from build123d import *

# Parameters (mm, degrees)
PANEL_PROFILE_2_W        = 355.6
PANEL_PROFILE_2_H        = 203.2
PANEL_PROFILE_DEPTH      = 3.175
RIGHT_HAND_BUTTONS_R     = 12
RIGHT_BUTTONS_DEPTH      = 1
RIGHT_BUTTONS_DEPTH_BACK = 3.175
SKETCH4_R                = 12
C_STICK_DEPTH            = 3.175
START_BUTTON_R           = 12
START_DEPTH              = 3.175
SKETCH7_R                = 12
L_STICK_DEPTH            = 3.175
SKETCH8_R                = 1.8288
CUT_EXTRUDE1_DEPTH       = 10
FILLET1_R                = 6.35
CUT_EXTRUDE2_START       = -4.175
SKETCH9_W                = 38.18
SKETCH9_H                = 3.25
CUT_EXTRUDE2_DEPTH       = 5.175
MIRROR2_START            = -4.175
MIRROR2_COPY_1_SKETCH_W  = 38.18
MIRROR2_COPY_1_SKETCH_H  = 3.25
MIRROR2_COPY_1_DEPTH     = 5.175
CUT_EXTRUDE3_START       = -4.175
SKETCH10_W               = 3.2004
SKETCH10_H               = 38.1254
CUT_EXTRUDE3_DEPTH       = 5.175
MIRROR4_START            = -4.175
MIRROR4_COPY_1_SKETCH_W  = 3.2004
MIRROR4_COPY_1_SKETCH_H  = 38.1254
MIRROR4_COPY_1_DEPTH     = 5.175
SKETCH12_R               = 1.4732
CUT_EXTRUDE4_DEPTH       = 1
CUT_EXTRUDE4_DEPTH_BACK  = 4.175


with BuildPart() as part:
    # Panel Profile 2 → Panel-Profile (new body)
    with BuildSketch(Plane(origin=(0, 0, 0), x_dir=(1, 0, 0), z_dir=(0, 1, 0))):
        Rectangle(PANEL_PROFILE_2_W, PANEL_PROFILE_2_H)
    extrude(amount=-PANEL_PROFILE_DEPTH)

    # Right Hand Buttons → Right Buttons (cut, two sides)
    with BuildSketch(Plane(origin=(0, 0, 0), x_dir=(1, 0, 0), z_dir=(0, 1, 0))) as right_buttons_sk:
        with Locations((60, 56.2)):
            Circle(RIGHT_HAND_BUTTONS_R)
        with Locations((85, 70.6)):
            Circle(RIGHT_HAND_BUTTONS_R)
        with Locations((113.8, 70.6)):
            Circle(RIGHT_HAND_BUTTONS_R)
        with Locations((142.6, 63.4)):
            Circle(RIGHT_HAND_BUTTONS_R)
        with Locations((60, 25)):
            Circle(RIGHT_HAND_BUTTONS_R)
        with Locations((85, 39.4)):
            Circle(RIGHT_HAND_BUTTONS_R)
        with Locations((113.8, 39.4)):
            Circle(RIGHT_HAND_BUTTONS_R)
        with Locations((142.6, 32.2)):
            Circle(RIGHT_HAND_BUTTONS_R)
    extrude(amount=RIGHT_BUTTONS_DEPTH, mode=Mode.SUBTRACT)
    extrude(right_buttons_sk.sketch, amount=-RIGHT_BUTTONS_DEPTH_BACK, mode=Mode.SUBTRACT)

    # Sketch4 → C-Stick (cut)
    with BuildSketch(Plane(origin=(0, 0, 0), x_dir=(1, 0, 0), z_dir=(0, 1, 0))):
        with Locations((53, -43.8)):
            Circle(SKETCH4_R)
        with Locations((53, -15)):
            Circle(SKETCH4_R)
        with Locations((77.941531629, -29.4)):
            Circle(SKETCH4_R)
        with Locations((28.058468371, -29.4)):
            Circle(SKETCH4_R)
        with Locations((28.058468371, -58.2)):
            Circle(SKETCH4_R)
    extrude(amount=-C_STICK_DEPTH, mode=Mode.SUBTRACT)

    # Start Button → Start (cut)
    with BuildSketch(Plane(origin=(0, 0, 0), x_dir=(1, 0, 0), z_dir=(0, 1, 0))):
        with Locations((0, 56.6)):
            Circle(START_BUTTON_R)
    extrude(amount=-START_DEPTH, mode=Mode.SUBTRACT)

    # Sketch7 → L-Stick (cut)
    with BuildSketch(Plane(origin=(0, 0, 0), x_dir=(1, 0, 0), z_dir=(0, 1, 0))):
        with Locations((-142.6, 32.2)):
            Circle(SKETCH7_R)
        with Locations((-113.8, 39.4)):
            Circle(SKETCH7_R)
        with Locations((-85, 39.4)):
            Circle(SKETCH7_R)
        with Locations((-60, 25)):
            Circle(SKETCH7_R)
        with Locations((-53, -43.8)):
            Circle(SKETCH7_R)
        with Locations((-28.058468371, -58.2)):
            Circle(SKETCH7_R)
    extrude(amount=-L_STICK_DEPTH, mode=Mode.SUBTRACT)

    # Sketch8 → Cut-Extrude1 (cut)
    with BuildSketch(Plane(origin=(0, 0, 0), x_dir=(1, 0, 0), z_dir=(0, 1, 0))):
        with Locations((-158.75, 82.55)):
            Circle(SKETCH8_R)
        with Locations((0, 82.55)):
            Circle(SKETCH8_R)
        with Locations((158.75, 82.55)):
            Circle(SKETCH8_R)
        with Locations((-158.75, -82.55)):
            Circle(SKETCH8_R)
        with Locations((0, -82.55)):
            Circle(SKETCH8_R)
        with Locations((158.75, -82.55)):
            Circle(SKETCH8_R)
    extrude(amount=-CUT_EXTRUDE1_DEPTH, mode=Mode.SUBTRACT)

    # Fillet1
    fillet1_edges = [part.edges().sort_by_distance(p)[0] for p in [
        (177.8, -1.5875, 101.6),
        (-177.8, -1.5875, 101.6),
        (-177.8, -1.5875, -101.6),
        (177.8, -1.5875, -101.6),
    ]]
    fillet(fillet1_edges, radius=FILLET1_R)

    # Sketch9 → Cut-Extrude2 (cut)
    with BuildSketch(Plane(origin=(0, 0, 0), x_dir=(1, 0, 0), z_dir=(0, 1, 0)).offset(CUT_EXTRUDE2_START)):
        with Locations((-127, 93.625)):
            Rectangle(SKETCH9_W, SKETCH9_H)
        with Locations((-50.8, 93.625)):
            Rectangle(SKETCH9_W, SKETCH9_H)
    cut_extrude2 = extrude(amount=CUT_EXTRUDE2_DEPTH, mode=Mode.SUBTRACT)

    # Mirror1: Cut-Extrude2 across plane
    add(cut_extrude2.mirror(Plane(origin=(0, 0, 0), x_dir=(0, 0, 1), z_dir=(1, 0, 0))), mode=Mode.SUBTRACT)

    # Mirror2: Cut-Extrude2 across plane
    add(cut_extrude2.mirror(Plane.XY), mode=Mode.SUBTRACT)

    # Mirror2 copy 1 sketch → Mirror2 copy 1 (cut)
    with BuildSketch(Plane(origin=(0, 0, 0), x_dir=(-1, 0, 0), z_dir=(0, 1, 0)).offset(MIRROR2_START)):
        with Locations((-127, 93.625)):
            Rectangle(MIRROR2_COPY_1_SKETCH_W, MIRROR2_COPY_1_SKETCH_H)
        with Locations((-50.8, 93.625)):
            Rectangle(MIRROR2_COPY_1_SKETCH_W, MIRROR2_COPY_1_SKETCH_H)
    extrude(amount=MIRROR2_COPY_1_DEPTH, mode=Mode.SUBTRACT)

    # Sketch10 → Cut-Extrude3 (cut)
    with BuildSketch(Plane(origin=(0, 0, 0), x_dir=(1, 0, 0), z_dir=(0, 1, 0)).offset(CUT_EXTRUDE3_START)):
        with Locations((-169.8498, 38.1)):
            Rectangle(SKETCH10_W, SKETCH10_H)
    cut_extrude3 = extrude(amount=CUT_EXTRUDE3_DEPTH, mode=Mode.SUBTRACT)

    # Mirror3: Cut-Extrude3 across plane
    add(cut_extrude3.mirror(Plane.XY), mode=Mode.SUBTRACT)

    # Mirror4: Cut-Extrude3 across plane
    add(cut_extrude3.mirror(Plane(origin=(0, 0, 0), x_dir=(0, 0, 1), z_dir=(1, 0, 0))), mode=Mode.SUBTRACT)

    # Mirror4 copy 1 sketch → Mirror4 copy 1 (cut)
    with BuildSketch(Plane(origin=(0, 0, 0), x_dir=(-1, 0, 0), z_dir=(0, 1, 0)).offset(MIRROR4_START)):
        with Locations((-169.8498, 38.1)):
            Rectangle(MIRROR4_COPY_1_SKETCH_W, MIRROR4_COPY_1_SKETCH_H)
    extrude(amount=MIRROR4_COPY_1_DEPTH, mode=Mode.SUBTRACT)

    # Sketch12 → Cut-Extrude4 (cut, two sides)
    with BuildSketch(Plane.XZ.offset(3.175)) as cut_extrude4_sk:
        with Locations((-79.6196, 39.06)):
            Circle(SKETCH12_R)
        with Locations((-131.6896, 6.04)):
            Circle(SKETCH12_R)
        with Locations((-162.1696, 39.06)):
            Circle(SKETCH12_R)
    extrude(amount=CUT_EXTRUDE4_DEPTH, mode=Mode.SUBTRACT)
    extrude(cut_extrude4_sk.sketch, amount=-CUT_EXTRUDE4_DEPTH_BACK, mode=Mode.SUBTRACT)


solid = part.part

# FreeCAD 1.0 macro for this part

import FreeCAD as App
import Part
import Sketcher

V = App.Vector
Q = App.Units.Quantity


def edges_at(feature, points):
    """Names of the edges that pass closest to the given points."""
    edges = feature.Shape.Edges
    near = lambda p: min(range(len(edges)), key=lambda i: edges[i].distToShape(Part.Vertex(*p))[0])
    return sorted({f"Edge{near(p) + 1}" for p in points})


def add_polygon(sketch, points):
    """Adds a closed chain of lines whose ends are joined by coincident constraints."""
    first, n = sketch.GeometryCount, len(points)
    for a, b in zip(points, points[1:] + points[:1]):
        sketch.addGeometry(Part.LineSegment(App.Vector(*a, 0), App.Vector(*b, 0)), False)
    for i in range(n):
        sketch.addConstraint(Sketcher.Constraint("Coincident", first + i, 2, first + (i + 1) % n, 1))

doc = App.newDocument("Part")
body = doc.addObject("PartDesign::Body", "Body")

sketch1 = body.newObject("Sketcher::SketchObject", "Sketch")
sketch1.AttachmentSupport = (doc.getObject("XZ_Plane"), [""])
sketch1.MapMode = "FlatFace"
add_polygon(sketch1, [(-178, -102), (-178, 102), (178, 102), (178, -102)])
sketch1.addConstraint(Sketcher.Constraint("Vertical", 0))
sketch1.addConstraint(Sketcher.Constraint("Horizontal", 1))
sketch1.addConstraint(Sketcher.Constraint("Vertical", 2))
sketch1.addConstraint(Sketcher.Constraint("Horizontal", 3))
sketch1.addConstraint(Sketcher.Constraint("Symmetric", 0, 2, 2, 2, -1, 1))
sketch1.addConstraint(Sketcher.Constraint("DistanceX", 1, 1, 1, 2, Q("14 in")))
sketch1.addConstraint(Sketcher.Constraint("DistanceY", 0, 1, 0, 2, Q("8 in")))
pad1 = body.newObject("PartDesign::Pad", "Pad")
pad1.Profile = sketch1
pad1.Length = Q("0.125 in")

sketch2 = body.newObject("Sketcher::SketchObject", "Sketch001")
sketch2.AttachmentSupport = (doc.getObject("XZ_Plane"), [""])
sketch2.MapMode = "FlatFace"
sketch2.addGeometry(Part.Circle(V(60, -56, 0), V(0, 0, 1), 12), False)
sketch2.addGeometry(Part.Circle(V(85, -71, 0), V(0, 0, 1), 12), False)
sketch2.addGeometry(Part.Circle(V(114, -71, 0), V(0, 0, 1), 12), False)
sketch2.addGeometry(Part.Circle(V(143, -63, 0), V(0, 0, 1), 12), False)
sketch2.addGeometry(Part.Circle(V(60, -25, 0), V(0, 0, 1), 12), False)
sketch2.addGeometry(Part.Circle(V(85, -39, 0), V(0, 0, 1), 12), False)
sketch2.addGeometry(Part.Circle(V(114, -39, 0), V(0, 0, 1), 12), False)
sketch2.addGeometry(Part.Circle(V(143, -32, 0), V(0, 0, 1), 12), False)
sketch2.addConstraint(Sketcher.Constraint("Equal", 0, 1))
sketch2.addConstraint(Sketcher.Constraint("Equal", 1, 2))
sketch2.addConstraint(Sketcher.Constraint("Equal", 2, 3))
sketch2.addConstraint(Sketcher.Constraint("Equal", 3, 4))
sketch2.addConstraint(Sketcher.Constraint("Equal", 4, 5))
sketch2.addConstraint(Sketcher.Constraint("Equal", 5, 6))
sketch2.addConstraint(Sketcher.Constraint("Equal", 6, 7))
sketch2.addConstraint(Sketcher.Constraint("Horizontal", 1, 3, 2, 3))
sketch2.addConstraint(Sketcher.Constraint("Horizontal", 5, 3, 6, 3))
sketch2.addConstraint(Sketcher.Constraint("Vertical", 0, 3, 4, 3))
sketch2.addConstraint(Sketcher.Constraint("Vertical", 1, 3, 5, 3))
sketch2.addConstraint(Sketcher.Constraint("Vertical", 2, 3, 6, 3))
sketch2.addConstraint(Sketcher.Constraint("Vertical", 3, 3, 7, 3))
sketch2.addConstraint(Sketcher.Constraint("Diameter", 0, Q("24 mm")))
sketch2.addConstraint(Sketcher.Constraint("DistanceX", -1, 1, 0, 3, Q("60 mm")))
sketch2.addConstraint(Sketcher.Constraint("DistanceY", 0, 3, -1, 1, Q("56.2 mm")))
sketch2.addConstraint(Sketcher.Constraint("DistanceX", -1, 1, 1, 3, Q("85 mm")))
sketch2.addConstraint(Sketcher.Constraint("DistanceY", 1, 3, -1, 1, Q("70.6 mm")))
sketch2.addConstraint(Sketcher.Constraint("DistanceX", -1, 1, 2, 3, Q("113.8 mm")))
sketch2.addConstraint(Sketcher.Constraint("DistanceX", -1, 1, 3, 3, Q("142.6 mm")))
sketch2.addConstraint(Sketcher.Constraint("DistanceY", 3, 3, -1, 1, Q("63.4 mm")))
sketch2.addConstraint(Sketcher.Constraint("DistanceY", 4, 3, -1, 1, Q("25 mm")))
sketch2.addConstraint(Sketcher.Constraint("DistanceY", 5, 3, -1, 1, Q("39.4 mm")))
sketch2.addConstraint(Sketcher.Constraint("DistanceY", 7, 3, -1, 1, Q("32.2 mm")))
pocket1 = body.newObject("PartDesign::Pocket", "Pocket")
pocket1.Profile = sketch2
pocket1.Type = "ThroughAll"
pocket1.Midplane = True

sketch3 = body.newObject("Sketcher::SketchObject", "Sketch002")
sketch3.AttachmentSupport = (doc.getObject("XZ_Plane"), [""])
sketch3.MapMode = "FlatFace"
sketch3.addGeometry(Part.Circle(V(53, 44, 0), V(0, 0, 1), 12), False)
sketch3.addGeometry(Part.Circle(V(53, 15, 0), V(0, 0, 1), 12), False)
sketch3.addGeometry(Part.Circle(V(78, 29, 0), V(0, 0, 1), 12), False)
sketch3.addGeometry(Part.Circle(V(28, 29, 0), V(0, 0, 1), 12), False)
sketch3.addGeometry(Part.Circle(V(28, 58, 0), V(0, 0, 1), 12), False)
sketch3.addConstraint(Sketcher.Constraint("Equal", 0, 1))
sketch3.addConstraint(Sketcher.Constraint("Equal", 1, 2))
sketch3.addConstraint(Sketcher.Constraint("Equal", 2, 3))
sketch3.addConstraint(Sketcher.Constraint("Equal", 3, 4))
sketch3.addConstraint(Sketcher.Constraint("Horizontal", 2, 3, 3, 3))
sketch3.addConstraint(Sketcher.Constraint("Vertical", 0, 3, 1, 3))
sketch3.addConstraint(Sketcher.Constraint("Vertical", 3, 3, 4, 3))
sketch3.addConstraint(Sketcher.Constraint("Diameter", 0, Q("24 mm")))
sketch3.addConstraint(Sketcher.Constraint("DistanceX", 3, 3, 2, 3, Q("1.9639001 in")))
sketch3.addConstraint(Sketcher.Constraint("DistanceX", -1, 1, 0, 3, Q("53 mm")))
sketch3.addConstraint(Sketcher.Constraint("DistanceY", -1, 1, 0, 3, Q("43.8 mm")))
sketch3.addConstraint(Sketcher.Constraint("DistanceY", -1, 1, 1, 3, Q("15 mm")))
sketch3.addConstraint(Sketcher.Constraint("DistanceY", -1, 1, 2, 3, Q("29.4 mm")))
sketch3.addConstraint(Sketcher.Constraint("DistanceY", -1, 1, 4, 3, Q("58.2 mm")))
sketch3.addConstraint(Sketcher.Constraint("DistanceX", -1, 1, 2, 3, Q("77.941532 mm")))
pocket2 = body.newObject("PartDesign::Pocket", "Pocket001")
pocket2.Profile = sketch3
pocket2.Length = Q("0.125 in")
pocket2.Reversed = True

sketch4 = body.newObject("Sketcher::SketchObject", "Sketch003")
sketch4.AttachmentSupport = (doc.getObject("XZ_Plane"), [""])
sketch4.MapMode = "FlatFace"
sketch4.addGeometry(Part.Circle(V(0, -57, 0), V(0, 0, 1), 12), False)
sketch4.addConstraint(Sketcher.Constraint("PointOnObject", 0, 3, -2))
sketch4.addConstraint(Sketcher.Constraint("Diameter", 0, Q("24 mm")))
sketch4.addConstraint(Sketcher.Constraint("DistanceY", 0, 3, -1, 1, Q("56.6 mm")))
pocket3 = body.newObject("PartDesign::Pocket", "Pocket002")
pocket3.Profile = sketch4
pocket3.Length = Q("0.125 in")
pocket3.Reversed = True

sketch5 = body.newObject("Sketcher::SketchObject", "Sketch004")
sketch5.AttachmentSupport = (doc.getObject("XZ_Plane"), [""])
sketch5.MapMode = "FlatFace"
sketch5.addGeometry(Part.Circle(V(-143, -32, 0), V(0, 0, 1), 12), False)
sketch5.addGeometry(Part.Circle(V(-114, -39, 0), V(0, 0, 1), 12), False)
sketch5.addGeometry(Part.Circle(V(-85, -39, 0), V(0, 0, 1), 12), False)
sketch5.addGeometry(Part.Circle(V(-60, -25, 0), V(0, 0, 1), 12), False)
sketch5.addGeometry(Part.Circle(V(-53, 44, 0), V(0, 0, 1), 12), False)
sketch5.addGeometry(Part.Circle(V(-28, 58, 0), V(0, 0, 1), 12), False)
sketch5.addConstraint(Sketcher.Constraint("Equal", 0, 1))
sketch5.addConstraint(Sketcher.Constraint("Equal", 1, 2))
sketch5.addConstraint(Sketcher.Constraint("Equal", 2, 3))
sketch5.addConstraint(Sketcher.Constraint("Equal", 3, 4))
sketch5.addConstraint(Sketcher.Constraint("Equal", 4, 5))
sketch5.addConstraint(Sketcher.Constraint("Horizontal", 1, 3, 2, 3))
sketch5.addConstraint(Sketcher.Constraint("Diameter", 0, Q("24 mm")))
sketch5.addConstraint(Sketcher.Constraint("DistanceX", 0, 3, -1, 1, Q("142.6 mm")))
sketch5.addConstraint(Sketcher.Constraint("DistanceY", 0, 3, -1, 1, Q("32.2 mm")))
sketch5.addConstraint(Sketcher.Constraint("DistanceX", 1, 3, -1, 1, Q("113.8 mm")))
sketch5.addConstraint(Sketcher.Constraint("DistanceY", 1, 3, -1, 1, Q("39.4 mm")))
sketch5.addConstraint(Sketcher.Constraint("DistanceX", 2, 3, -1, 1, Q("85 mm")))
sketch5.addConstraint(Sketcher.Constraint("DistanceX", 3, 3, -1, 1, Q("60 mm")))
sketch5.addConstraint(Sketcher.Constraint("DistanceY", 3, 3, -1, 1, Q("25 mm")))
sketch5.addConstraint(Sketcher.Constraint("DistanceX", 4, 3, -1, 1, Q("53 mm")))
sketch5.addConstraint(Sketcher.Constraint("DistanceY", -1, 1, 4, 3, Q("43.8 mm")))
sketch5.addConstraint(Sketcher.Constraint("DistanceY", -1, 1, 5, 3, Q("58.2 mm")))
sketch5.addConstraint(Sketcher.Constraint("DistanceX", 5, 3, -1, 1, Q("28.058468 mm")))
pocket4 = body.newObject("PartDesign::Pocket", "Pocket003")
pocket4.Profile = sketch5
pocket4.Length = Q("0.125 in")
pocket4.Reversed = True

sketch6 = body.newObject("Sketcher::SketchObject", "Sketch005")
sketch6.AttachmentSupport = (doc.getObject("XZ_Plane"), [""])
sketch6.MapMode = "FlatFace"
sketch6.addGeometry(Part.Circle(V(-158.8, -82.5, 0), V(0, 0, 1), 1.8), False)
sketch6.addGeometry(Part.Circle(V(0, -82.5, 0), V(0, 0, 1), 1.8), False)
sketch6.addGeometry(Part.Circle(V(158.8, -82.5, 0), V(0, 0, 1), 1.8), False)
sketch6.addGeometry(Part.Circle(V(-158.8, 82.5, 0), V(0, 0, 1), 1.8), False)
sketch6.addGeometry(Part.Circle(V(0, 82.5, 0), V(0, 0, 1), 1.8), False)
sketch6.addGeometry(Part.Circle(V(158.8, 82.5, 0), V(0, 0, 1), 1.8), False)
sketch6.addConstraint(Sketcher.Constraint("Equal", 0, 1))
sketch6.addConstraint(Sketcher.Constraint("Equal", 1, 2))
sketch6.addConstraint(Sketcher.Constraint("Equal", 2, 3))
sketch6.addConstraint(Sketcher.Constraint("Equal", 3, 4))
sketch6.addConstraint(Sketcher.Constraint("Equal", 4, 5))
sketch6.addConstraint(Sketcher.Constraint("Symmetric", 2, 3, 3, 3, -1, 1))
sketch6.addConstraint(Sketcher.Constraint("Symmetric", 1, 3, 4, 3, -1, 1))
sketch6.addConstraint(Sketcher.Constraint("Symmetric", 0, 3, 5, 3, -1, 1))
sketch6.addConstraint(Sketcher.Constraint("Symmetric", 0, 3, 2, 3, -2))
sketch6.addConstraint(Sketcher.Constraint("PointOnObject", 1, 3, -2))
sketch6.addConstraint(Sketcher.Constraint("Horizontal", 0, 3, 1, 3))
sketch6.addConstraint(Sketcher.Constraint("Diameter", 0, Q("0.144 in")))
sketch6.addConstraint(Sketcher.Constraint("DistanceX", 0, 3, 2, 3, Q("12.5 in")))
sketch6.addConstraint(Sketcher.Constraint("DistanceY", 0, 3, 3, 3, Q("6.5 in")))
pocket5 = body.newObject("PartDesign::Pocket", "Pocket004")
pocket5.Profile = sketch6
pocket5.Length = 10
pocket5.Reversed = True
doc.recompute()

fillet = body.newObject("PartDesign::Fillet", "Fillet")
fillet.Base = (pocket5, edges_at(pocket5, [
    (177.8, -1.587, 101.6),
    (-177.8, -1.587, 101.6),
    (-177.8, -1.587, -101.6),
    (177.8, -1.587, -101.6),
]))
fillet.Radius = Q("0.25 in")

sketch7 = body.newObject("Sketcher::SketchObject", "Sketch006")
sketch7.AttachmentSupport = (doc.getObject("XZ_Plane"), [""])
sketch7.MapMode = "FlatFace"
sketch7.AttachmentOffset = App.Placement(V(0, 0, 4.175), App.Rotation())
add_polygon(sketch7, [(-146.1, -95.2), (-146.1, -92), (-107.9, -92), (-107.9, -95.2)])
add_polygon(sketch7, [(-69.9, -95.2), (-69.9, -92), (-31.7, -92), (-31.7, -95.2)])
sketch7.addConstraint(Sketcher.Constraint("Vertical", 0))
sketch7.addConstraint(Sketcher.Constraint("Horizontal", 1))
sketch7.addConstraint(Sketcher.Constraint("Vertical", 2))
sketch7.addConstraint(Sketcher.Constraint("Horizontal", 3))
sketch7.addConstraint(Sketcher.Constraint("Vertical", 4))
sketch7.addConstraint(Sketcher.Constraint("Horizontal", 5))
sketch7.addConstraint(Sketcher.Constraint("Vertical", 6))
sketch7.addConstraint(Sketcher.Constraint("Horizontal", 7))
sketch7.addConstraint(Sketcher.Constraint("Horizontal", 1, 2, 4, 2))
sketch7.addConstraint(Sketcher.Constraint("Horizontal", 3, 2, 6, 2))
sketch7.addConstraint(Sketcher.Constraint("Equal", 3, 5))
sketch7.addConstraint(Sketcher.Constraint("DistanceX", 0, 2, 4, 2, Q("3 in")))
sketch7.addConstraint(Sketcher.Constraint("DistanceY", 2, 2, -1, 1, Q("3.75 in")))
sketch7.addConstraint(Sketcher.Constraint("DistanceX", 1, 1, 1, 2, Q("38.18 mm")))
sketch7.addConstraint(Sketcher.Constraint("DistanceY", 0, 1, 0, 2, Q("3.25 mm")))
sketch7.addConstraint(Sketcher.Constraint("DistanceX", 0, 2, -1, 1, Q("146.09 mm")))
pocket6 = body.newObject("PartDesign::Pocket", "Pocket005")
pocket6.Profile = sketch7
pocket6.Length = 5.175
doc.recompute()

mirrored = body.newObject("PartDesign::Mirrored", "Mirrored")
mirrored.Originals = [pocket6]
mirrored.MirrorPlane = (doc.getObject("YZ_Plane"), [""])
body.Tip = mirrored
doc.recompute()

mirrored2 = body.newObject("PartDesign::Mirrored", "Mirrored001")
mirrored2.Originals = [pocket6]
mirrored2.MirrorPlane = (doc.getObject("XY_Plane"), [""])
body.Tip = mirrored2

sketch8 = body.newObject("Sketcher::SketchObject", "Sketch007")
sketch8.AttachmentSupport = (doc.getObject("XZ_Plane"), [""])
sketch8.MapMode = "FlatFace"
sketch8.AttachmentOffset = App.Placement(V(0, 0, 4.175), App.Rotation())
add_polygon(sketch8, [(146.1, 95.2), (146.1, 92), (107.9, 92), (107.9, 95.2)])
add_polygon(sketch8, [(69.9, 95.2), (69.9, 92), (31.7, 92), (31.7, 95.2)])
sketch8.addConstraint(Sketcher.Constraint("Vertical", 0))
sketch8.addConstraint(Sketcher.Constraint("Horizontal", 1))
sketch8.addConstraint(Sketcher.Constraint("Vertical", 2))
sketch8.addConstraint(Sketcher.Constraint("Horizontal", 3))
sketch8.addConstraint(Sketcher.Constraint("Vertical", 4))
sketch8.addConstraint(Sketcher.Constraint("Horizontal", 5))
sketch8.addConstraint(Sketcher.Constraint("Vertical", 6))
sketch8.addConstraint(Sketcher.Constraint("Horizontal", 7))
sketch8.addConstraint(Sketcher.Constraint("Horizontal", 1, 2, 4, 2))
sketch8.addConstraint(Sketcher.Constraint("Horizontal", 3, 2, 6, 2))
sketch8.addConstraint(Sketcher.Constraint("Equal", 3, 5))
sketch8.addConstraint(Sketcher.Constraint("DistanceX", 4, 2, 0, 2, Q("3 in")))
sketch8.addConstraint(Sketcher.Constraint("DistanceY", -1, 1, 2, 2, Q("3.75 in")))
sketch8.addConstraint(Sketcher.Constraint("DistanceX", 1, 2, 1, 1, Q("38.18 mm")))
sketch8.addConstraint(Sketcher.Constraint("DistanceY", 0, 2, 0, 1, Q("3.25 mm")))
sketch8.addConstraint(Sketcher.Constraint("DistanceX", -1, 1, 0, 2, Q("146.09 mm")))
pocket7 = body.newObject("PartDesign::Pocket", "Pocket006")
pocket7.Profile = sketch8
pocket7.Length = 5.175

sketch9 = body.newObject("Sketcher::SketchObject", "Sketch008")
sketch9.AttachmentSupport = (doc.getObject("XZ_Plane"), [""])
sketch9.MapMode = "FlatFace"
sketch9.AttachmentOffset = App.Placement(V(0, 0, 4.175), App.Rotation())
add_polygon(sketch9, [(-171.4, -57.2), (-171.4, -19), (-168.2, -19), (-168.2, -57.2)])
sketch9.addConstraint(Sketcher.Constraint("Vertical", 0))
sketch9.addConstraint(Sketcher.Constraint("Horizontal", 1))
sketch9.addConstraint(Sketcher.Constraint("Vertical", 2))
sketch9.addConstraint(Sketcher.Constraint("Horizontal", 3))
sketch9.addConstraint(Sketcher.Constraint("DistanceX", 1, 1, 1, 2, Q("0.126 in")))
sketch9.addConstraint(Sketcher.Constraint("DistanceY", 0, 1, 0, 2, Q("1.501 in")))
sketch9.addConstraint(Sketcher.Constraint("DistanceX", 0, 2, -1, 1, Q("6.75 in")))
sketch9.addConstraint(Sketcher.Constraint("DistanceY", 0, 2, -1, 1, Q("0.7495 in")))
pocket8 = body.newObject("PartDesign::Pocket", "Pocket007")
pocket8.Profile = sketch9
pocket8.Length = 5.175
doc.recompute()

mirrored3 = body.newObject("PartDesign::Mirrored", "Mirrored002")
mirrored3.Originals = [pocket8]
mirrored3.MirrorPlane = (doc.getObject("XY_Plane"), [""])
body.Tip = mirrored3
doc.recompute()

mirrored4 = body.newObject("PartDesign::Mirrored", "Mirrored003")
mirrored4.Originals = [pocket8]
mirrored4.MirrorPlane = (doc.getObject("YZ_Plane"), [""])
body.Tip = mirrored4

sketch10 = body.newObject("Sketcher::SketchObject", "Sketch009")
sketch10.AttachmentSupport = (doc.getObject("XZ_Plane"), [""])
sketch10.MapMode = "FlatFace"
sketch10.AttachmentOffset = App.Placement(V(0, 0, 4.175), App.Rotation())
add_polygon(sketch10, [(171.4, 57.2), (171.4, 19), (168.2, 19), (168.2, 57.2)])
sketch10.addConstraint(Sketcher.Constraint("Vertical", 0))
sketch10.addConstraint(Sketcher.Constraint("Horizontal", 1))
sketch10.addConstraint(Sketcher.Constraint("Vertical", 2))
sketch10.addConstraint(Sketcher.Constraint("Horizontal", 3))
sketch10.addConstraint(Sketcher.Constraint("DistanceX", 1, 2, 1, 1, Q("0.126 in")))
sketch10.addConstraint(Sketcher.Constraint("DistanceY", 0, 2, 0, 1, Q("1.501 in")))
sketch10.addConstraint(Sketcher.Constraint("DistanceX", -1, 1, 0, 2, Q("6.75 in")))
sketch10.addConstraint(Sketcher.Constraint("DistanceY", -1, 1, 0, 2, Q("0.7495 in")))
pocket9 = body.newObject("PartDesign::Pocket", "Pocket008")
pocket9.Profile = sketch10
pocket9.Length = 5.175

sketch11 = body.newObject("Sketcher::SketchObject", "Sketch010")
sketch11.AttachmentSupport = (doc.getObject("XZ_Plane"), [""])
sketch11.MapMode = "FlatFace"
sketch11.AttachmentOffset = App.Placement(V(0, 0, 0.125 * 25.4), App.Rotation())
sketch11.addGeometry(Part.Circle(V(-79.6, 39.1, 0), V(0, 0, 1), 1.5), False)
sketch11.addGeometry(Part.Circle(V(-131.7, 6, 0), V(0, 0, 1), 1.5), False)
sketch11.addGeometry(Part.Circle(V(-162.2, 39.1, 0), V(0, 0, 1), 1.5), False)
sketch11.addConstraint(Sketcher.Constraint("Equal", 0, 1))
sketch11.addConstraint(Sketcher.Constraint("Equal", 1, 2))
sketch11.addConstraint(Sketcher.Constraint("Horizontal", 0, 3, 2, 3))
sketch11.addConstraint(Sketcher.Constraint("Diameter", 0, Q("0.116 in")))
sketch11.addConstraint(Sketcher.Constraint("DistanceY", 1, 3, 0, 3, Q("1.3 in")))
sketch11.addConstraint(Sketcher.Constraint("DistanceX", 2, 3, 1, 3, Q("1.2 in")))
sketch11.addConstraint(Sketcher.Constraint("DistanceX", 1, 3, 0, 3, Q("2.05 in")))
sketch11.addConstraint(Sketcher.Constraint("DistanceX", 0, 3, -1, 1, Q("79.6196 mm")))
sketch11.addConstraint(Sketcher.Constraint("DistanceY", -1, 1, 0, 3, Q("39.06 mm")))
pocket10 = body.newObject("PartDesign::Pocket", "Pocket009")
pocket10.Profile = sketch11
pocket10.Type = "ThroughAll"
pocket10.Midplane = True

doc.recompute()
